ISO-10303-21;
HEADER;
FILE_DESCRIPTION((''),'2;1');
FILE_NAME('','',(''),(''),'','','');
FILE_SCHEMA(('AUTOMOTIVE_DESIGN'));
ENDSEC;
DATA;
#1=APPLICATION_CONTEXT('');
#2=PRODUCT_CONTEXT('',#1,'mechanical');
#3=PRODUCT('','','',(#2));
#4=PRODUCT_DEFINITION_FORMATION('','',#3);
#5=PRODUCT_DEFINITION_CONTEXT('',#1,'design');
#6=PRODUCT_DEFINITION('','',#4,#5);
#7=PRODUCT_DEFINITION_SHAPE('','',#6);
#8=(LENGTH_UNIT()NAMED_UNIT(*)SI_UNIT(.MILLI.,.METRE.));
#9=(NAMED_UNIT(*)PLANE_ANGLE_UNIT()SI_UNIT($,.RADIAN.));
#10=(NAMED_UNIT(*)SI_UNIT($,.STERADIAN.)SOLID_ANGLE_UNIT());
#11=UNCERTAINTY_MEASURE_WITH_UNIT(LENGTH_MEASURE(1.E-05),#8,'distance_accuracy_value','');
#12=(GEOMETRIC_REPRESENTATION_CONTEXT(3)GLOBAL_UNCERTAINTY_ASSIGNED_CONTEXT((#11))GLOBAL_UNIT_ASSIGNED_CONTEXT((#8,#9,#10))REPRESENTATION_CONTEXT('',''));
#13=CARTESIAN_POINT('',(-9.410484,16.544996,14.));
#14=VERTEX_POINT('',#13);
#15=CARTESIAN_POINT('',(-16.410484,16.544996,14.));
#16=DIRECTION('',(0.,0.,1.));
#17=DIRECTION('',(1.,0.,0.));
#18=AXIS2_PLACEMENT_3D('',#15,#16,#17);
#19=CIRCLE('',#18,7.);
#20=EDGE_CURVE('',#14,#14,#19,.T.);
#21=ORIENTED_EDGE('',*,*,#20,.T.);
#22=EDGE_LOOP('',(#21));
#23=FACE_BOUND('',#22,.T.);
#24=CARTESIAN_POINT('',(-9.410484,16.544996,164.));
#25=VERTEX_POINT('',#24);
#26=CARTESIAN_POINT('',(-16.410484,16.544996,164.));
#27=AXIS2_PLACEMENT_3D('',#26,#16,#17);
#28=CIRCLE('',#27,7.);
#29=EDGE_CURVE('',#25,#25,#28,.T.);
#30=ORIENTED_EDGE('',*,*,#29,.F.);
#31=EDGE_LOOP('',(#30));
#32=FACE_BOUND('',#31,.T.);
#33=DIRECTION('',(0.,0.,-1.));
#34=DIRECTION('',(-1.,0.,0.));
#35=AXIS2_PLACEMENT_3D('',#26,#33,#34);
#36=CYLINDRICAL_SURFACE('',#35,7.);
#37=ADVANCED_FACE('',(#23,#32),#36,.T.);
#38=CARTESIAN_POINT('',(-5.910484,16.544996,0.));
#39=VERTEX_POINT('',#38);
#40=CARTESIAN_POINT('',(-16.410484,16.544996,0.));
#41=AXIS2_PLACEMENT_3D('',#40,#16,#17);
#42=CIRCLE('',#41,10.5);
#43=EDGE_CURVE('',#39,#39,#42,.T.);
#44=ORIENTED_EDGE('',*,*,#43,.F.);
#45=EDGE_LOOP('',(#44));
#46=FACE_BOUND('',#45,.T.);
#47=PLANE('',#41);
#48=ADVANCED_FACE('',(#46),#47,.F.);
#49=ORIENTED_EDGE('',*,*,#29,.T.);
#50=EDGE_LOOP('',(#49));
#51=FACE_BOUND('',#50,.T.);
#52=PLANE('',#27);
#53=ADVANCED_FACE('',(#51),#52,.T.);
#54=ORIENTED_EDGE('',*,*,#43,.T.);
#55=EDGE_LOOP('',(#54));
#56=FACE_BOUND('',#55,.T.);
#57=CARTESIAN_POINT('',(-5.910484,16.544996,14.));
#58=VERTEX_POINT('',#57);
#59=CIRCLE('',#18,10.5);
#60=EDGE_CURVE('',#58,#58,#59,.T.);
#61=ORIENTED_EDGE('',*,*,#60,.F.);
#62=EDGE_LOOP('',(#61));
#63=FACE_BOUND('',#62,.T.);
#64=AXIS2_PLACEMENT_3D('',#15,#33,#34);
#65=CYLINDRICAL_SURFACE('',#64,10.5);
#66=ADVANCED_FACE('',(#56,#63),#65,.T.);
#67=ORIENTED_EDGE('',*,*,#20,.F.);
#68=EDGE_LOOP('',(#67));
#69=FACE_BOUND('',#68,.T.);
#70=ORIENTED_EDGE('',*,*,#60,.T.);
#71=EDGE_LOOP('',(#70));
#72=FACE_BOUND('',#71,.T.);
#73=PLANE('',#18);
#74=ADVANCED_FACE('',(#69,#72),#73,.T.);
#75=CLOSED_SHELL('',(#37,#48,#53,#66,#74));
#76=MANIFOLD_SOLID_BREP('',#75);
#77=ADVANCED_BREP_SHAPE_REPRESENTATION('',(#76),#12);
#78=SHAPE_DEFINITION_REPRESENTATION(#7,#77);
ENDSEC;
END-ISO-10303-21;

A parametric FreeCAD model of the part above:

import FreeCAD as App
import Part
import Sketcher

V = App.Vector

doc = App.newDocument("Part")
params = doc.addObject("Spreadsheet::Sheet", "Params")
for row, (alias, value) in enumerate([
    ("sketch1_diameter", "21 mm"),
    ("pad1_length", "14 mm"),
    ("sketch2_diameter", "14 mm"),
    ("pad2_length", "150 mm"),
], start=1):
    params.set(f"A{row}", alias)
    params.set(f"B{row}", "=" + value)
    params.setAlias(f"B{row}", alias)

body = doc.addObject("PartDesign::Body", "Body")

# Sketch on XY plane
sketch1 = body.newObject("Sketcher::SketchObject", "Sketch")
sketch1.AttachmentSupport = (doc.getObject("XY_Plane"), [""])
sketch1.MapMode = "FlatFace"
sketch1.addGeometry(Part.Circle(V(-16, 17, 0), V(0, 0, 1), 10), False)
sketch1.addConstraint([
    Sketcher.Constraint("Diameter", 0, 21.0),
    Sketcher.Constraint("DistanceX", 0, 3, -1, 1, 16.410484),
    Sketcher.Constraint("DistanceY", -1, 1, 0, 3, 16.544996),
])
sketch1.setExpression("Constraints[0]", "Params.sketch1_diameter")
pad1 = body.newObject("PartDesign::Pad", "Pad")
pad1.Profile = sketch1
pad1.setExpression("Length", "Params.pad1_length")

# Sketch on XY plane
sketch2 = body.newObject("Sketcher::SketchObject", "Sketch001")
sketch2.AttachmentSupport = (doc.getObject("XY_Plane"), [""])
sketch2.MapMode = "FlatFace"
sketch2.AttachmentOffset = App.Placement(V(0, 0, 14), App.Rotation())
sketch2.addGeometry(Part.Circle(V(-16, 17, 0), V(0, 0, 1), 7), False)
sketch2.addConstraint([
    Sketcher.Constraint("Diameter", 0, 14.0),
    Sketcher.Constraint("DistanceX", 0, 3, -1, 1, 16.410484),
    Sketcher.Constraint("DistanceY", -1, 1, 0, 3, 16.544996),
])
sketch2.setExpression("Constraints[0]", "Params.sketch2_diameter")
pad2 = body.newObject("PartDesign::Pad", "Pad001")
pad2.Profile = sketch2
pad2.setExpression("Length", "Params.pad2_length")

doc.recompute()
